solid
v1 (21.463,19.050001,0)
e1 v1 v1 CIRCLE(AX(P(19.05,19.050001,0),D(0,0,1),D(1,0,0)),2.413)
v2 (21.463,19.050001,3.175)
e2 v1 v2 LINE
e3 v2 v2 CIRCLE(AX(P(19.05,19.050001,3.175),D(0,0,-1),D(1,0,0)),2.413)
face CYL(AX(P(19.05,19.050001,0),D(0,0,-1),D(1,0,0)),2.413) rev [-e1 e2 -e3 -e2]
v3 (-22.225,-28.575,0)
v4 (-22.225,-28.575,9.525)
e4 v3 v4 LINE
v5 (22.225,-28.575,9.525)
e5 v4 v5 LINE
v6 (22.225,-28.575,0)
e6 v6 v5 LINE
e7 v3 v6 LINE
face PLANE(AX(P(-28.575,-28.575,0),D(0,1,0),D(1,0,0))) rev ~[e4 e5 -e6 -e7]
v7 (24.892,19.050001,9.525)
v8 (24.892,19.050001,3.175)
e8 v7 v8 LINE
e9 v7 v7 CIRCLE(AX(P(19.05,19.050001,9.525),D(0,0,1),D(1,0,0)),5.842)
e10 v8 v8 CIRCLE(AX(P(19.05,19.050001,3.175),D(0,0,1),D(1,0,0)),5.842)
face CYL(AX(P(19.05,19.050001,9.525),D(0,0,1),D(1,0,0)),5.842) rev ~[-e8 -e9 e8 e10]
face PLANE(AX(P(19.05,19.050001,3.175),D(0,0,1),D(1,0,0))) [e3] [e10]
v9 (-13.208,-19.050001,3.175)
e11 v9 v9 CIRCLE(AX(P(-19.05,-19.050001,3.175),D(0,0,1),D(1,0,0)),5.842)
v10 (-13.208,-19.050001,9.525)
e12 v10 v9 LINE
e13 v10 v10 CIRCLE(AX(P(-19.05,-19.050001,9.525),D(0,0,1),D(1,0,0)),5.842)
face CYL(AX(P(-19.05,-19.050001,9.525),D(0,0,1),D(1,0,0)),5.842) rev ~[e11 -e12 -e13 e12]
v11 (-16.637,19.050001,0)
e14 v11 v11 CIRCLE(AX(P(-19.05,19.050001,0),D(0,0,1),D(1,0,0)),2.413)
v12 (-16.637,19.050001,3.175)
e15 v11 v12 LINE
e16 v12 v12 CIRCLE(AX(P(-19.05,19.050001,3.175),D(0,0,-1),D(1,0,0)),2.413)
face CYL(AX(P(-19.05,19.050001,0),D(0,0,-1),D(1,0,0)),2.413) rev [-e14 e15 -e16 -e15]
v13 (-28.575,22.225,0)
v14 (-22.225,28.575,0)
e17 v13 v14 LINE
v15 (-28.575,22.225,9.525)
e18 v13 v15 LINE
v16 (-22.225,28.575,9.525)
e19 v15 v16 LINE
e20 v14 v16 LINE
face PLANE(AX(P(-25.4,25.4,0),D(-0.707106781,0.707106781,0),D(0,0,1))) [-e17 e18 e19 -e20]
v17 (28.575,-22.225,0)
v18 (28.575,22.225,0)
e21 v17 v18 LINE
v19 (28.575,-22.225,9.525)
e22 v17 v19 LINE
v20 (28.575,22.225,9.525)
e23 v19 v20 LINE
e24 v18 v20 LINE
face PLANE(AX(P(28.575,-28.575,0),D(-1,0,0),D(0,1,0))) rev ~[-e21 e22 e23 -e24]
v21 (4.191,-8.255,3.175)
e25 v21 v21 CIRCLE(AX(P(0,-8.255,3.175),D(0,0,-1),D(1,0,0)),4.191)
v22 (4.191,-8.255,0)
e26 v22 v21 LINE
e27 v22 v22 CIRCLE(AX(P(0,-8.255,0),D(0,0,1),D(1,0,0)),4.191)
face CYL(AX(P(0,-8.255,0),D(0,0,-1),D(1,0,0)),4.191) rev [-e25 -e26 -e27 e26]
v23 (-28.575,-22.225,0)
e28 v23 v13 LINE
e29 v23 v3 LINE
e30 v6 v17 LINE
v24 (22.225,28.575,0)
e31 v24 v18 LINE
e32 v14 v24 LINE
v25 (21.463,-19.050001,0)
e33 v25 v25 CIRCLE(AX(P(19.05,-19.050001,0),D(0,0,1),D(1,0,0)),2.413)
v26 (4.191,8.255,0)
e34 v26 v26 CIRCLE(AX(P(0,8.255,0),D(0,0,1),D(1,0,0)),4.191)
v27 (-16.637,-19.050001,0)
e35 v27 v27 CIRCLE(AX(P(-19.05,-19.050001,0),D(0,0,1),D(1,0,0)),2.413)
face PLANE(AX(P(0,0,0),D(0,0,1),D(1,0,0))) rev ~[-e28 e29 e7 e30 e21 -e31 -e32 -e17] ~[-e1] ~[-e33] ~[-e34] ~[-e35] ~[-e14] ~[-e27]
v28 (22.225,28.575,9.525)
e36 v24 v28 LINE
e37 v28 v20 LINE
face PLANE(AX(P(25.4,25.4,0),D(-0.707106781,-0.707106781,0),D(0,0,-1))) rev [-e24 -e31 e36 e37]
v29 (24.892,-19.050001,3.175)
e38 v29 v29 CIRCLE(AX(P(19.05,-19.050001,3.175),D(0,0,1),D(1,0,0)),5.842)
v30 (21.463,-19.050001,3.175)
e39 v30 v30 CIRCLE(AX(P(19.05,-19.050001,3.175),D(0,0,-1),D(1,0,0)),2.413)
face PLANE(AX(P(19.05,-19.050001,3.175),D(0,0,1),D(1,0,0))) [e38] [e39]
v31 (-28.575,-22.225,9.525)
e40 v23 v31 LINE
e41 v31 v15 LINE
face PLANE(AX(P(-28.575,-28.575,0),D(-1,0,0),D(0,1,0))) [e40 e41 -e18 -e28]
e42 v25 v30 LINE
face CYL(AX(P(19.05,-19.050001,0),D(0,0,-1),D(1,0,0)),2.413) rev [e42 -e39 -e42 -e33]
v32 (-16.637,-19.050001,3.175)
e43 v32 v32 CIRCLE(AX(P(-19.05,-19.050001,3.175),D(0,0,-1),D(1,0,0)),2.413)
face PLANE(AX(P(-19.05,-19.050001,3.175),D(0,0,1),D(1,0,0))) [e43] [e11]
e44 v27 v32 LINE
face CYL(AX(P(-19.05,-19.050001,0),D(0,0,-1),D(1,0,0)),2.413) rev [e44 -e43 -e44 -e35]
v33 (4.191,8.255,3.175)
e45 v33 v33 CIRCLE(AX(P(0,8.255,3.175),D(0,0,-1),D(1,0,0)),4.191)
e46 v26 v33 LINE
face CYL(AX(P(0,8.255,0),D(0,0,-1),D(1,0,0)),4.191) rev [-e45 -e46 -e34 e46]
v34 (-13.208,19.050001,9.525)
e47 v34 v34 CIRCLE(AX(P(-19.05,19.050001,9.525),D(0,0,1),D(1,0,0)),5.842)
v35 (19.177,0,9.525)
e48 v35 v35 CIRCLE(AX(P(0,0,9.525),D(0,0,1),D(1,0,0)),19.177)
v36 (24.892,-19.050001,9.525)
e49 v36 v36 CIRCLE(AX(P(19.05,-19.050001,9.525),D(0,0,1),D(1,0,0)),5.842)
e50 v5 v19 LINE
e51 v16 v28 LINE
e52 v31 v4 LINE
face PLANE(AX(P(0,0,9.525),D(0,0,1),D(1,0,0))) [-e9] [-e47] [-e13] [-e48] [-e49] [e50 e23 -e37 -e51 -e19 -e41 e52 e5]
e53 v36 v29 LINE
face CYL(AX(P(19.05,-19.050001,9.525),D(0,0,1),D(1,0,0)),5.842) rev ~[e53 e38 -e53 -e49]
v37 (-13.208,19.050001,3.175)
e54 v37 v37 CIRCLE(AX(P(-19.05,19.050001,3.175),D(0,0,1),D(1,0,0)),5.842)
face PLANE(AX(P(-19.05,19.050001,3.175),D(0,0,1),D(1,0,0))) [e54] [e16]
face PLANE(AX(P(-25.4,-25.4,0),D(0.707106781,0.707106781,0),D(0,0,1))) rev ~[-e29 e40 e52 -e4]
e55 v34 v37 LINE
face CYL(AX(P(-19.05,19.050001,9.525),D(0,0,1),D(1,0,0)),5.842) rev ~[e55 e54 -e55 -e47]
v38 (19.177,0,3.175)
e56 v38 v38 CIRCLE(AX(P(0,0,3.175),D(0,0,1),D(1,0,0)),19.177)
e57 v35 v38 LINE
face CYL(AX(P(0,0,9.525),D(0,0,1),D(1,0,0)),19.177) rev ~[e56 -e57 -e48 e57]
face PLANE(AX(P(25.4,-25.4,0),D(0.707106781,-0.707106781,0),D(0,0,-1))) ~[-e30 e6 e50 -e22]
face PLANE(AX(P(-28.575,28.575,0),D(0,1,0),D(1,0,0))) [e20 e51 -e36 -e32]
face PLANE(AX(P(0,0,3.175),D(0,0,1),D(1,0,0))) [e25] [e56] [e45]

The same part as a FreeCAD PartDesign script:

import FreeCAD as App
import Part
import Sketcher

V = App.Vector
Q = App.Units.Quantity


def edges_at(feature, points):
    """Names of the edges that pass closest to the given points."""
    edges = feature.Shape.Edges
    near = lambda p: min(range(len(edges)), key=lambda i: edges[i].distToShape(Part.Vertex(*p))[0])
    return sorted({f"Edge{near(p) + 1}" for p in points})


def add_polygon(sketch, points):
    """Adds a closed chain of lines whose ends are joined by coincident constraints."""
    first, n = sketch.GeometryCount, len(points)
    for a, b in zip(points, points[1:] + points[:1]):
        sketch.addGeometry(Part.LineSegment(App.Vector(*a, 0), App.Vector(*b, 0)), False)
    for i in range(n):
        sketch.addConstraint(Sketcher.Constraint("Coincident", first + i, 2, first + (i + 1) % n, 1))

doc = App.newDocument("Part")
body = doc.addObject("PartDesign::Body", "Body")

# Sketch on XY plane
sketch1 = body.newObject("Sketcher::SketchObject", "Sketch")
sketch1.AttachmentSupport = (doc.getObject("XY_Plane"), [""])
sketch1.MapMode = "FlatFace"
add_polygon(sketch1, [(-28.575, 28.575), (-28.575, -28.575), (28.575, -28.575), (28.575, 28.575)])  # lines 0-3
sketch1.addConstraint(Sketcher.Constraint("Vertical", 0))
sketch1.addConstraint(Sketcher.Constraint("Horizontal", 1))
sketch1.addConstraint(Sketcher.Constraint("Vertical", 2))
sketch1.addConstraint(Sketcher.Constraint("Horizontal", 3))
sketch1.addConstraint(Sketcher.Constraint("Symmetric", 0, 2, 2, 2, -1, 1))
sketch1.addConstraint(Sketcher.Constraint("Equal", 3, 0))
sketch1.addConstraint(Sketcher.Constraint("DistanceX", 1, 1, 1, 2, Q("2.25 in")))
pad1 = body.newObject("PartDesign::Pad", "Pad")
pad1.Profile = sketch1
pad1.Length = Q("0.375 in")

# Sketch on XY plane
sketch2 = body.newObject("Sketcher::SketchObject", "Sketch001")
sketch2.AttachmentSupport = (doc.getObject("XY_Plane"), [""])
sketch2.MapMode = "FlatFace"
sketch2.AttachmentOffset = App.Placement(V(0, 0, 0.375 * 25.4), App.Rotation())
sketch2.addGeometry(Part.Circle(V(0, 0, 0), V(0, 0, 1), 19.177), False)
sketch2.addConstraint(Sketcher.Constraint("Coincident", 0, 3, -1, 1))
sketch2.addConstraint(Sketcher.Constraint("Diameter", 0, Q("1.51 in")))
pocket1 = body.newObject("PartDesign::Pocket", "Pocket")
pocket1.Profile = sketch2
pocket1.Length = Q("0.25 in")

# Sketch on XY plane
sketch3 = body.newObject("Sketcher::SketchObject", "Sketch002")
sketch3.AttachmentSupport = (doc.getObject("XY_Plane"), [""])
sketch3.MapMode = "FlatFace"
sketch3.addGeometry(Part.Circle(V(-19.05, 19.050001, 0), V(0, 0, 1), 2.413), False)
sketch3.addGeometry(Part.Circle(V(19.05, 19.050001, 0), V(0, 0, 1), 2.413), False)
sketch3.addGeometry(Part.Circle(V(-19.05, -19.050001, 0), V(0, 0, 1), 2.413), False)
sketch3.addGeometry(Part.Circle(V(19.05, -19.050001, 0), V(0, 0, 1), 2.413), False)
sketch3.addConstraint(Sketcher.Constraint("Equal", 0, 1))
sketch3.addConstraint(Sketcher.Constraint("Equal", 1, 2))
sketch3.addConstraint(Sketcher.Constraint("Equal", 2, 3))
sketch3.addConstraint(Sketcher.Constraint("Symmetric", 1, 3, 2, 3, -1, 1))
sketch3.addConstraint(Sketcher.Constraint("Symmetric", 0, 3, 3, 3, -1, 1))
sketch3.addConstraint(Sketcher.Constraint("Symmetric", 0, 3, 1, 3, -2))
sketch3.addConstraint(Sketcher.Constraint("Diameter", 0, Q("0.19 in")))
sketch3.addConstraint(Sketcher.Constraint("DistanceX", 0, 3, 1, 3, Q("1.5 in")))
sketch3.addConstraint(Sketcher.Constraint("DistanceY", 2, 3, 0, 3, Q("1.5000001 in")))
pocket2 = body.newObject("PartDesign::Pocket", "Pocket001")
pocket2.Profile = sketch3
pocket2.Type = "ThroughAll"
pocket2.Reversed = True

# Sketch on XY plane
sketch4 = body.newObject("Sketcher::SketchObject", "Sketch003")
sketch4.AttachmentSupport = (doc.getObject("XY_Plane"), [""])
sketch4.MapMode = "FlatFace"
sketch4.addGeometry(Part.Circle(V(0, 8.255, 0), V(0, 0, 1), 4.191), False)
sketch4.addGeometry(Part.Circle(V(0, -8.255, 0), V(0, 0, 1), 4.191), False)
sketch4.addConstraint(Sketcher.Constraint("Equal", 0, 1))
sketch4.addConstraint(Sketcher.Constraint("Symmetric", 0, 3, 1, 3, -1, 1))
sketch4.addConstraint(Sketcher.Constraint("PointOnObject", 0, 3, -2))
sketch4.addConstraint(Sketcher.Constraint("Diameter", 0, Q("0.33 in")))
sketch4.addConstraint(Sketcher.Constraint("DistanceY", 1, 3, 0, 3, Q("0.65 in")))
pocket3 = body.newObject("PartDesign::Pocket", "Pocket002")
pocket3.Profile = sketch4
pocket3.Type = "ThroughAll"
pocket3.Reversed = True

# Sketch on XY plane
sketch5 = body.newObject("Sketcher::SketchObject", "Sketch004")
sketch5.AttachmentSupport = (doc.getObject("XY_Plane"), [""])
sketch5.MapMode = "FlatFace"
sketch5.AttachmentOffset = App.Placement(V(0, 0, 0.375 * 25.4), App.Rotation())
sketch5.addGeometry(Part.Circle(V(-19.05, 19.050001, 0), V(0, 0, 1), 5.842), False)
sketch5.addGeometry(Part.Circle(V(19.05, 19.050001, 0), V(0, 0, 1), 5.842), False)
sketch5.addGeometry(Part.Circle(V(-19.05, -19.050001, 0), V(0, 0, 1), 5.842), False)
sketch5.addGeometry(Part.Circle(V(19.05, -19.050001, 0), V(0, 0, 1), 5.842), False)
sketch5.addConstraint(Sketcher.Constraint("Equal", 0, 1))
sketch5.addConstraint(Sketcher.Constraint("Equal", 1, 2))
sketch5.addConstraint(Sketcher.Constraint("Equal", 2, 3))
sketch5.addConstraint(Sketcher.Constraint("Symmetric", 1, 3, 2, 3, -1, 1))
sketch5.addConstraint(Sketcher.Constraint("Symmetric", 0, 3, 3, 3, -1, 1))
sketch5.addConstraint(Sketcher.Constraint("Symmetric", 0, 3, 1, 3, -2))
sketch5.addConstraint(Sketcher.Constraint("Diameter", 0, Q("0.46 in")))
sketch5.addConstraint(Sketcher.Constraint("DistanceX", 0, 3, 1, 3, Q("1.5 in")))
sketch5.addConstraint(Sketcher.Constraint("DistanceY", 2, 3, 0, 3, Q("1.5000001 in")))
pocket4 = body.newObject("PartDesign::Pocket", "Pocket003")
pocket4.Profile = sketch5
pocket4.Length = Q("0.25 in")
doc.recompute()

chamfer = body.newObject("PartDesign::Chamfer", "Chamfer")
chamfer.Base = (pocket4, edges_at(pocket4, [
    (-28.575, -28.575, 4.763),
    (28.575, -28.575, 4.763),
    (28.575, 28.575, 4.763),
    (-28.575, 28.575, 4.763),
]))
chamfer.Size = Q("0.25 in")

doc.recompute()
